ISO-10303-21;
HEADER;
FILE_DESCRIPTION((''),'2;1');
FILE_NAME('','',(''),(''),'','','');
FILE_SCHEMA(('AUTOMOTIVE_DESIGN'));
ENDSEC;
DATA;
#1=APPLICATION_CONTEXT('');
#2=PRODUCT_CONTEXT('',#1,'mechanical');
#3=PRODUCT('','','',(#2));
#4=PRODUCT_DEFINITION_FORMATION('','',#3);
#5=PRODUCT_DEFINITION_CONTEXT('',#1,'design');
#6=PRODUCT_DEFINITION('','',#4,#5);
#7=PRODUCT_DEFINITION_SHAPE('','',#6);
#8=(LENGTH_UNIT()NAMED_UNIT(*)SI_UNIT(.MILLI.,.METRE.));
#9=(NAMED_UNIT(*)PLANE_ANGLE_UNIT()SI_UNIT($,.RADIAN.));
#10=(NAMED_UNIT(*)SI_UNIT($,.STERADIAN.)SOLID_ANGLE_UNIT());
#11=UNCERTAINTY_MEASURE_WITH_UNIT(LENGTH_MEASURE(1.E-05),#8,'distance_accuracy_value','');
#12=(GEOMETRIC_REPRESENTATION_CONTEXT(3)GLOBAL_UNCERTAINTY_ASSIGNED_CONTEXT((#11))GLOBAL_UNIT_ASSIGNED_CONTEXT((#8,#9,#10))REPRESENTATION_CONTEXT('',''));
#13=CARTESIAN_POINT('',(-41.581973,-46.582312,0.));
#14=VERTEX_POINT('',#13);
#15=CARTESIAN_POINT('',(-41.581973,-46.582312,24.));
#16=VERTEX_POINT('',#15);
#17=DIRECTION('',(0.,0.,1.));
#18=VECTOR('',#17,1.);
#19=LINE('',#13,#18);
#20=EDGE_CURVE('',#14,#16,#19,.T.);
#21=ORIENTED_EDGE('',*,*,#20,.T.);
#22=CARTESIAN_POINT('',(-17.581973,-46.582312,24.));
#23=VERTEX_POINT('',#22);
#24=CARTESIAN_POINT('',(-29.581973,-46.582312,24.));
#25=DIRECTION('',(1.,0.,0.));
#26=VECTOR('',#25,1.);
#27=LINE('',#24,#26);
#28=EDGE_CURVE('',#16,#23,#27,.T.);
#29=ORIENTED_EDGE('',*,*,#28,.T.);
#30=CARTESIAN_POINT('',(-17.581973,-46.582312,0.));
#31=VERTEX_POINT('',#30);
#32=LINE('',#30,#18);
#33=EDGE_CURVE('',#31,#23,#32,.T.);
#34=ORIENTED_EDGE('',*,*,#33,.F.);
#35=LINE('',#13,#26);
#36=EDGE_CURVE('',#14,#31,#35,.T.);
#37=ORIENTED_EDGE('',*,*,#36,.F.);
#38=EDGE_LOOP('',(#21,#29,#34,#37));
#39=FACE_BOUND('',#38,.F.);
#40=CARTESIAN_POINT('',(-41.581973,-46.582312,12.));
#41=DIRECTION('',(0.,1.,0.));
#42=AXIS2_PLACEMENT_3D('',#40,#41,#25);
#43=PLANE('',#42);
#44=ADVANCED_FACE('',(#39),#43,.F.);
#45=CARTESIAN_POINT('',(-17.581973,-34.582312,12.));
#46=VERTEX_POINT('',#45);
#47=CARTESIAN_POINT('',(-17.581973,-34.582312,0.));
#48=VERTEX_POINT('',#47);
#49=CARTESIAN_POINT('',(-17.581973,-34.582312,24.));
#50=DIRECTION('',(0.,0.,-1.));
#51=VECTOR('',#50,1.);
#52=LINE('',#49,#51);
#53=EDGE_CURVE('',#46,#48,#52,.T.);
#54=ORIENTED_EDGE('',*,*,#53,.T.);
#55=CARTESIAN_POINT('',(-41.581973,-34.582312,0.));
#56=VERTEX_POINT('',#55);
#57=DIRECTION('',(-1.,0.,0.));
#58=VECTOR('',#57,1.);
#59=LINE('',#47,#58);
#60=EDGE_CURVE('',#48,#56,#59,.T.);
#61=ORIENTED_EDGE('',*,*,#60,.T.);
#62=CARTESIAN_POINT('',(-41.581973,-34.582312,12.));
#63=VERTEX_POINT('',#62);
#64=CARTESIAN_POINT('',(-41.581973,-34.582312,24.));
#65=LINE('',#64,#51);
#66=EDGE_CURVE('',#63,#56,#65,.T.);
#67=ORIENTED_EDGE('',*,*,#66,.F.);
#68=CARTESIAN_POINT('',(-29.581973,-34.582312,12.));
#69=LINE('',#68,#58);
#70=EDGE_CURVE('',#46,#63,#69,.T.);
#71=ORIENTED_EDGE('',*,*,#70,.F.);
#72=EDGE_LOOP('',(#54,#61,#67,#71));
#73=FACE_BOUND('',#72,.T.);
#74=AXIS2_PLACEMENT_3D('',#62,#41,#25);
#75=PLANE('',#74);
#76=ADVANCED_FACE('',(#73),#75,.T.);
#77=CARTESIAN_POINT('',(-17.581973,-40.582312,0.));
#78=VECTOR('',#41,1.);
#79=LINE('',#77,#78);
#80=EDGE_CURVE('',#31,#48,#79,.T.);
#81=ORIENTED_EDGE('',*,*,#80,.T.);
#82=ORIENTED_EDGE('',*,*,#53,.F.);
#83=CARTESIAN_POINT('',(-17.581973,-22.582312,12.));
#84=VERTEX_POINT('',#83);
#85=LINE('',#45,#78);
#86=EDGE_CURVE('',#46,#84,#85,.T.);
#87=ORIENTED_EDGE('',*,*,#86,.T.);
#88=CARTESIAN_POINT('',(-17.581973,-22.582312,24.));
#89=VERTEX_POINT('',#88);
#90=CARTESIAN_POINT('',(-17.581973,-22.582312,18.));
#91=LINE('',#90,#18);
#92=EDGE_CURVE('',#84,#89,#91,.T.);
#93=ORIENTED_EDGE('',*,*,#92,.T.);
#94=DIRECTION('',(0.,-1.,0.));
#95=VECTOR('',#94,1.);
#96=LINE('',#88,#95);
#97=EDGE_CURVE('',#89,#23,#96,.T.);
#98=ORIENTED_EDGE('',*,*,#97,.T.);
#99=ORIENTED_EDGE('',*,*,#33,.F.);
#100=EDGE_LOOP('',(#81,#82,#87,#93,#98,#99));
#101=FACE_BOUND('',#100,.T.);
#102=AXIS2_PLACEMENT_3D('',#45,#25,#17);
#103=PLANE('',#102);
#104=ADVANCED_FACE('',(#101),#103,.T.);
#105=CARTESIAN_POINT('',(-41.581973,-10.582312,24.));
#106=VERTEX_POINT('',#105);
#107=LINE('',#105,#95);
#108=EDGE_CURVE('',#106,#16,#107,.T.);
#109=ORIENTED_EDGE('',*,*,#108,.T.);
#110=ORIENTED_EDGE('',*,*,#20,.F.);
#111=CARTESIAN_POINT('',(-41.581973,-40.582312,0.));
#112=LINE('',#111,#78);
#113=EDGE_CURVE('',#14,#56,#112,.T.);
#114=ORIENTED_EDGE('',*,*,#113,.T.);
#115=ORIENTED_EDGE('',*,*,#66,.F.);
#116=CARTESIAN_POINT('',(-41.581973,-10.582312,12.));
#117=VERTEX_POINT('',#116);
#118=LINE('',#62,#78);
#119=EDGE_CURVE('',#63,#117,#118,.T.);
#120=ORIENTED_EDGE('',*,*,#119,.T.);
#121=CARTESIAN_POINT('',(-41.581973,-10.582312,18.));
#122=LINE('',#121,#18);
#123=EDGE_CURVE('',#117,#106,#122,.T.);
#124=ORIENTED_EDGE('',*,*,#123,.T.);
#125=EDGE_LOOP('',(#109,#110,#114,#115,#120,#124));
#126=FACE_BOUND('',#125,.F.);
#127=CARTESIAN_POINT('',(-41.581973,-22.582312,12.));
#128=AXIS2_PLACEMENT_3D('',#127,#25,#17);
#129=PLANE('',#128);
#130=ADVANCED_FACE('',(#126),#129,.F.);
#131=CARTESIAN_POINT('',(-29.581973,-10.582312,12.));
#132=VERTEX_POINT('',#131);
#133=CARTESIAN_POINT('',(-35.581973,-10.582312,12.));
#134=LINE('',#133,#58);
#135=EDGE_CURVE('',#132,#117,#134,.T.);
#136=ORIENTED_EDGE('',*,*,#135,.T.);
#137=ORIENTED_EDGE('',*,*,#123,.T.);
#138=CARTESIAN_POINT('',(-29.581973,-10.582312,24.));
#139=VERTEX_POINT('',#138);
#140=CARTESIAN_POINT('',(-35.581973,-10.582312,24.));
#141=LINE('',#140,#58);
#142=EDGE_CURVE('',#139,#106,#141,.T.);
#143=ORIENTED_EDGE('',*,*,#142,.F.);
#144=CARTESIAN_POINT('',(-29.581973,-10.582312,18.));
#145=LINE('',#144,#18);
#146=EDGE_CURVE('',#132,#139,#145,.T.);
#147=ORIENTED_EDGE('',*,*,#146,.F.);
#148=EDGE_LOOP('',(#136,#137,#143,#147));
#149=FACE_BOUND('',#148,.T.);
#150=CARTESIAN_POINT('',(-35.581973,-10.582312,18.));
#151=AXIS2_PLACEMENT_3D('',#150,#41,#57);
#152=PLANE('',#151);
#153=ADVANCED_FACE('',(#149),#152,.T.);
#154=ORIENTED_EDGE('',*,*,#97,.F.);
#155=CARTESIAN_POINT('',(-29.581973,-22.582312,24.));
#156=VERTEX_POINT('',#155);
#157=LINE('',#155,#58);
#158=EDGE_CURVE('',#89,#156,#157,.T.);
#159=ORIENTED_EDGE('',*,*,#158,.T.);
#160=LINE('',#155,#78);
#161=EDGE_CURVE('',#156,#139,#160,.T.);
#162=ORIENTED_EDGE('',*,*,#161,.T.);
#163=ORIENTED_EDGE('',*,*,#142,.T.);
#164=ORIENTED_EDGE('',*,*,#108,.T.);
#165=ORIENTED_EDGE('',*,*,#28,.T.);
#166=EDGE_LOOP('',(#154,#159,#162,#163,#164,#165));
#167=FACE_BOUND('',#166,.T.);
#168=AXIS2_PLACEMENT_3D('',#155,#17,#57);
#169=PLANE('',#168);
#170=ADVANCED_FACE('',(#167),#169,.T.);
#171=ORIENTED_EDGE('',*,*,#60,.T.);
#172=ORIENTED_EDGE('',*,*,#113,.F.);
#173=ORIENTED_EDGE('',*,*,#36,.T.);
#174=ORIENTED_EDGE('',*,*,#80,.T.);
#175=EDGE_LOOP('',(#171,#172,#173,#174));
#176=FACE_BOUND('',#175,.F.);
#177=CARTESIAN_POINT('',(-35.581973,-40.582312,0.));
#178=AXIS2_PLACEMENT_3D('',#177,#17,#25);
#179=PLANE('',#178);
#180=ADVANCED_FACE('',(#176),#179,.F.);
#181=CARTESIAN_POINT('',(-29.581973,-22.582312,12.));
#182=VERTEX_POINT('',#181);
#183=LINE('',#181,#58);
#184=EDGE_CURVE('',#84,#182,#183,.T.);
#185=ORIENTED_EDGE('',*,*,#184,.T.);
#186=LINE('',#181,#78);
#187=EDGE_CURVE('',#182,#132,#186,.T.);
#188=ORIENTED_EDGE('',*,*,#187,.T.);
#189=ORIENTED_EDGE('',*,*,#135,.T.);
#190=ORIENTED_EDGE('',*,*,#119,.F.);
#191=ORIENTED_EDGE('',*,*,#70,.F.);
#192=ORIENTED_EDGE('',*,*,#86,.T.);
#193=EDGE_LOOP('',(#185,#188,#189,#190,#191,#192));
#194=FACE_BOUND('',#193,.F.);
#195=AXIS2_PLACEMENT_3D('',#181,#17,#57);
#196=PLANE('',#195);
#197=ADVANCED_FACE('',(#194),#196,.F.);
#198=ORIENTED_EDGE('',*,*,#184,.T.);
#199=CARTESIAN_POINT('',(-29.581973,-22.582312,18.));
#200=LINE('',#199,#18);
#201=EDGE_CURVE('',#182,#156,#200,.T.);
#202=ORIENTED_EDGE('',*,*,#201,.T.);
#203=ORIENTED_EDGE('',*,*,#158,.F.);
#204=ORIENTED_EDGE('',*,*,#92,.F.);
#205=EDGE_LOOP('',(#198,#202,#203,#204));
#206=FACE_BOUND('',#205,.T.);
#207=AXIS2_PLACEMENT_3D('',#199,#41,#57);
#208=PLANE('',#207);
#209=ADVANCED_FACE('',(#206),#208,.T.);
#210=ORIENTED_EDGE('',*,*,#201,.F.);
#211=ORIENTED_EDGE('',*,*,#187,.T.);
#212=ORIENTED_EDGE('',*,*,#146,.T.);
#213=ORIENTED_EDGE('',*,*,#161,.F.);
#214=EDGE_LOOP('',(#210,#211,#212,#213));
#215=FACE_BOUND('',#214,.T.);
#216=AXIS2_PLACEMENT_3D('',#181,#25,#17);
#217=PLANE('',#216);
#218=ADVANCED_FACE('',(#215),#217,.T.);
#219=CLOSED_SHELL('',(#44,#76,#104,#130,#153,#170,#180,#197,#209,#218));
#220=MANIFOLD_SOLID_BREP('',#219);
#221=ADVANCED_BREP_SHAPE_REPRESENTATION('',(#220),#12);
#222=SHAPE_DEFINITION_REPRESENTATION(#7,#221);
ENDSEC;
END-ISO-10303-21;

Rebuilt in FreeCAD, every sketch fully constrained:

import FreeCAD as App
import Part
import Sketcher

doc = App.newDocument("Part")
params = doc.addObject("Spreadsheet::Sheet", "Params")
for row, (alias, value) in enumerate([
    ("sketch1_width", "24 mm"),
    ("sketch1_height", "12 mm"),
    ("pad1_length", "12 mm"),
    ("sketch2_width", "24 mm"),
    ("sketch2_height", "12 mm"),
    ("pad2_length", "12 mm"),
    ("sketch3_width", "24 mm"),
    ("sketch3_height", "12 mm"),
    ("pad3_length", "12 mm"),
    ("sketch4_width", "12 mm"),
    ("pad4_length", "12 mm"),
], start=1):
    params.set(f"A{row}", alias)
    params.set(f"B{row}", "=" + value)
    params.setAlias(f"B{row}", alias)

body = doc.addObject("PartDesign::Body", "Body")

sketch1 = body.newObject("Sketcher::SketchObject", "Sketch")
sketch1.AttachmentSupport = (doc.getObject("XY_Plane"), [""])
sketch1.MapMode = "FlatFace"
sketch1.addGeometry([
    Part.LineSegment(App.Vector(-42, -35, 0), App.Vector(-42, -47, 0)),
    Part.LineSegment(App.Vector(-42, -47, 0), App.Vector(-18, -47, 0)),
    Part.LineSegment(App.Vector(-18, -47, 0), App.Vector(-18, -35, 0)),
    Part.LineSegment(App.Vector(-18, -35, 0), App.Vector(-42, -35, 0)),
], False)
sketch1.addConstraint([
    Sketcher.Constraint("Coincident", 0, 2, 1, 1),
    Sketcher.Constraint("Coincident", 1, 2, 2, 1),
    Sketcher.Constraint("Coincident", 2, 2, 3, 1),
    Sketcher.Constraint("Coincident", 3, 2, 0, 1),
    Sketcher.Constraint("Vertical", 0),
    Sketcher.Constraint("Horizontal", 1),
    Sketcher.Constraint("Vertical", 2),
    Sketcher.Constraint("Horizontal", 3),
    Sketcher.Constraint("DistanceX", 1, 1, 1, 2, 24.0),
    Sketcher.Constraint("DistanceY", 0, 2, 0, 1, 12.0),
    Sketcher.Constraint("DistanceX", 0, 2, -1, 1, 41.581973),
    Sketcher.Constraint("DistanceY", 0, 2, -1, 1, 46.582312),
])
sketch1.setExpression("Constraints[8]", "Params.sketch1_width")
sketch1.setExpression("Constraints[9]", "Params.sketch1_height")
pad1 = body.newObject("PartDesign::Pad", "Pad")
pad1.Profile = sketch1
pad1.setExpression("Length", "Params.pad1_length")

sketch2 = body.newObject("Sketcher::SketchObject", "Sketch001")
sketch2.AttachmentSupport = (doc.getObject("XY_Plane"), [""])
sketch2.MapMode = "FlatFace"
sketch2.AttachmentOffset = App.Placement(App.Vector(0, 0, 12), App.Rotation())
sketch2.addGeometry([
    Part.LineSegment(App.Vector(-42, -35, 0), App.Vector(-42, -47, 0)),
    Part.LineSegment(App.Vector(-42, -47, 0), App.Vector(-18, -47, 0)),
    Part.LineSegment(App.Vector(-18, -47, 0), App.Vector(-18, -35, 0)),
    Part.LineSegment(App.Vector(-18, -35, 0), App.Vector(-42, -35, 0)),
], False)
sketch2.addConstraint([
    Sketcher.Constraint("Coincident", 0, 2, 1, 1),
    Sketcher.Constraint("Coincident", 1, 2, 2, 1),
    Sketcher.Constraint("Coincident", 2, 2, 3, 1),
    Sketcher.Constraint("Coincident", 3, 2, 0, 1),
    Sketcher.Constraint("Vertical", 0),
    Sketcher.Constraint("Horizontal", 1),
    Sketcher.Constraint("Vertical", 2),
    Sketcher.Constraint("Horizontal", 3),
    Sketcher.Constraint("DistanceX", 1, 1, 1, 2, 24.0),
    Sketcher.Constraint("DistanceY", 0, 2, 0, 1, 12.0),
    Sketcher.Constraint("DistanceX", 0, 2, -1, 1, 41.581973),
    Sketcher.Constraint("DistanceY", 0, 2, -1, 1, 46.582312),
])
sketch2.setExpression("Constraints[8]", "Params.sketch2_width")
sketch2.setExpression("Constraints[9]", "Params.sketch2_height")
pad2 = body.newObject("PartDesign::Pad", "Pad001")
pad2.Profile = sketch2
pad2.setExpression("Length", "Params.pad2_length")

sketch3 = body.newObject("Sketcher::SketchObject", "Sketch002")
sketch3.AttachmentSupport = (doc.getObject("XZ_Plane"), [""])
sketch3.MapMode = "FlatFace"
sketch3.AttachmentOffset = App.Placement(App.Vector(0, 0, 34.582312), App.Rotation())
sketch3.addGeometry([
    Part.LineSegment(App.Vector(-18, 24, 0), App.Vector(-18, 12, 0)),
    Part.LineSegment(App.Vector(-18, 12, 0), App.Vector(-42, 12, 0)),
    Part.LineSegment(App.Vector(-42, 12, 0), App.Vector(-42, 24, 0)),
    Part.LineSegment(App.Vector(-42, 24, 0), App.Vector(-18, 24, 0)),
], False)
sketch3.addConstraint([
    Sketcher.Constraint("Coincident", 0, 2, 1, 1),
    Sketcher.Constraint("Coincident", 1, 2, 2, 1),
    Sketcher.Constraint("Coincident", 2, 2, 3, 1),
    Sketcher.Constraint("Coincident", 3, 2, 0, 1),
    Sketcher.Constraint("Vertical", 0),
    Sketcher.Constraint("Horizontal", 1),
    Sketcher.Constraint("Vertical", 2),
    Sketcher.Constraint("Horizontal", 3),
    Sketcher.Constraint("DistanceX", 1, 2, 1, 1, 24.0),
    Sketcher.Constraint("DistanceY", 0, 2, 0, 1, 12.0),
    Sketcher.Constraint("DistanceY", -1, 1, 0, 2, 12.0),
    Sketcher.Constraint("DistanceX", 0, 2, -1, 1, 17.581973),
])
sketch3.setExpression("Constraints[8]", "Params.sketch3_width")
sketch3.setExpression("Constraints[9]", "Params.sketch3_height")
pad3 = body.newObject("PartDesign::Pad", "Pad002")
pad3.Profile = sketch3
pad3.setExpression("Length", "Params.pad3_length")
pad3.Reversed = True

sketch4 = body.newObject("Sketcher::SketchObject", "Sketch003")
sketch4.AttachmentSupport = (doc.getObject("XZ_Plane"), [""])
sketch4.MapMode = "FlatFace"
sketch4.AttachmentOffset = App.Placement(App.Vector(0, 0, 22.582312), App.Rotation())
sketch4.addGeometry([
    Part.LineSegment(App.Vector(-30, 24, 0), App.Vector(-30, 12, 0)),
    Part.LineSegment(App.Vector(-30, 12, 0), App.Vector(-42, 12, 0)),
    Part.LineSegment(App.Vector(-42, 12, 0), App.Vector(-42, 24, 0)),
    Part.LineSegment(App.Vector(-42, 24, 0), App.Vector(-30, 24, 0)),
], False)
sketch4.addConstraint([
    Sketcher.Constraint("Coincident", 0, 2, 1, 1),
    Sketcher.Constraint("Coincident", 1, 2, 2, 1),
    Sketcher.Constraint("Coincident", 2, 2, 3, 1),
    Sketcher.Constraint("Coincident", 3, 2, 0, 1),
    Sketcher.Constraint("Vertical", 0),
    Sketcher.Constraint("Horizontal", 1),
    Sketcher.Constraint("Vertical", 2),
    Sketcher.Constraint("Horizontal", 3),
    Sketcher.Constraint("Equal", 3, 0),
    Sketcher.Constraint("DistanceX", 1, 2, 1, 1, 12.0),
    Sketcher.Constraint("DistanceY", -1, 1, 0, 2, 12.0),
    Sketcher.Constraint("DistanceX", 0, 2, -1, 1, 29.581973),
])
sketch4.setExpression("Constraints[9]", "Params.sketch4_width")
pad4 = body.newObject("PartDesign::Pad", "Pad003")
pad4.Profile = sketch4
pad4.setExpression("Length", "Params.pad4_length")
pad4.Reversed = True

doc.recompute()
